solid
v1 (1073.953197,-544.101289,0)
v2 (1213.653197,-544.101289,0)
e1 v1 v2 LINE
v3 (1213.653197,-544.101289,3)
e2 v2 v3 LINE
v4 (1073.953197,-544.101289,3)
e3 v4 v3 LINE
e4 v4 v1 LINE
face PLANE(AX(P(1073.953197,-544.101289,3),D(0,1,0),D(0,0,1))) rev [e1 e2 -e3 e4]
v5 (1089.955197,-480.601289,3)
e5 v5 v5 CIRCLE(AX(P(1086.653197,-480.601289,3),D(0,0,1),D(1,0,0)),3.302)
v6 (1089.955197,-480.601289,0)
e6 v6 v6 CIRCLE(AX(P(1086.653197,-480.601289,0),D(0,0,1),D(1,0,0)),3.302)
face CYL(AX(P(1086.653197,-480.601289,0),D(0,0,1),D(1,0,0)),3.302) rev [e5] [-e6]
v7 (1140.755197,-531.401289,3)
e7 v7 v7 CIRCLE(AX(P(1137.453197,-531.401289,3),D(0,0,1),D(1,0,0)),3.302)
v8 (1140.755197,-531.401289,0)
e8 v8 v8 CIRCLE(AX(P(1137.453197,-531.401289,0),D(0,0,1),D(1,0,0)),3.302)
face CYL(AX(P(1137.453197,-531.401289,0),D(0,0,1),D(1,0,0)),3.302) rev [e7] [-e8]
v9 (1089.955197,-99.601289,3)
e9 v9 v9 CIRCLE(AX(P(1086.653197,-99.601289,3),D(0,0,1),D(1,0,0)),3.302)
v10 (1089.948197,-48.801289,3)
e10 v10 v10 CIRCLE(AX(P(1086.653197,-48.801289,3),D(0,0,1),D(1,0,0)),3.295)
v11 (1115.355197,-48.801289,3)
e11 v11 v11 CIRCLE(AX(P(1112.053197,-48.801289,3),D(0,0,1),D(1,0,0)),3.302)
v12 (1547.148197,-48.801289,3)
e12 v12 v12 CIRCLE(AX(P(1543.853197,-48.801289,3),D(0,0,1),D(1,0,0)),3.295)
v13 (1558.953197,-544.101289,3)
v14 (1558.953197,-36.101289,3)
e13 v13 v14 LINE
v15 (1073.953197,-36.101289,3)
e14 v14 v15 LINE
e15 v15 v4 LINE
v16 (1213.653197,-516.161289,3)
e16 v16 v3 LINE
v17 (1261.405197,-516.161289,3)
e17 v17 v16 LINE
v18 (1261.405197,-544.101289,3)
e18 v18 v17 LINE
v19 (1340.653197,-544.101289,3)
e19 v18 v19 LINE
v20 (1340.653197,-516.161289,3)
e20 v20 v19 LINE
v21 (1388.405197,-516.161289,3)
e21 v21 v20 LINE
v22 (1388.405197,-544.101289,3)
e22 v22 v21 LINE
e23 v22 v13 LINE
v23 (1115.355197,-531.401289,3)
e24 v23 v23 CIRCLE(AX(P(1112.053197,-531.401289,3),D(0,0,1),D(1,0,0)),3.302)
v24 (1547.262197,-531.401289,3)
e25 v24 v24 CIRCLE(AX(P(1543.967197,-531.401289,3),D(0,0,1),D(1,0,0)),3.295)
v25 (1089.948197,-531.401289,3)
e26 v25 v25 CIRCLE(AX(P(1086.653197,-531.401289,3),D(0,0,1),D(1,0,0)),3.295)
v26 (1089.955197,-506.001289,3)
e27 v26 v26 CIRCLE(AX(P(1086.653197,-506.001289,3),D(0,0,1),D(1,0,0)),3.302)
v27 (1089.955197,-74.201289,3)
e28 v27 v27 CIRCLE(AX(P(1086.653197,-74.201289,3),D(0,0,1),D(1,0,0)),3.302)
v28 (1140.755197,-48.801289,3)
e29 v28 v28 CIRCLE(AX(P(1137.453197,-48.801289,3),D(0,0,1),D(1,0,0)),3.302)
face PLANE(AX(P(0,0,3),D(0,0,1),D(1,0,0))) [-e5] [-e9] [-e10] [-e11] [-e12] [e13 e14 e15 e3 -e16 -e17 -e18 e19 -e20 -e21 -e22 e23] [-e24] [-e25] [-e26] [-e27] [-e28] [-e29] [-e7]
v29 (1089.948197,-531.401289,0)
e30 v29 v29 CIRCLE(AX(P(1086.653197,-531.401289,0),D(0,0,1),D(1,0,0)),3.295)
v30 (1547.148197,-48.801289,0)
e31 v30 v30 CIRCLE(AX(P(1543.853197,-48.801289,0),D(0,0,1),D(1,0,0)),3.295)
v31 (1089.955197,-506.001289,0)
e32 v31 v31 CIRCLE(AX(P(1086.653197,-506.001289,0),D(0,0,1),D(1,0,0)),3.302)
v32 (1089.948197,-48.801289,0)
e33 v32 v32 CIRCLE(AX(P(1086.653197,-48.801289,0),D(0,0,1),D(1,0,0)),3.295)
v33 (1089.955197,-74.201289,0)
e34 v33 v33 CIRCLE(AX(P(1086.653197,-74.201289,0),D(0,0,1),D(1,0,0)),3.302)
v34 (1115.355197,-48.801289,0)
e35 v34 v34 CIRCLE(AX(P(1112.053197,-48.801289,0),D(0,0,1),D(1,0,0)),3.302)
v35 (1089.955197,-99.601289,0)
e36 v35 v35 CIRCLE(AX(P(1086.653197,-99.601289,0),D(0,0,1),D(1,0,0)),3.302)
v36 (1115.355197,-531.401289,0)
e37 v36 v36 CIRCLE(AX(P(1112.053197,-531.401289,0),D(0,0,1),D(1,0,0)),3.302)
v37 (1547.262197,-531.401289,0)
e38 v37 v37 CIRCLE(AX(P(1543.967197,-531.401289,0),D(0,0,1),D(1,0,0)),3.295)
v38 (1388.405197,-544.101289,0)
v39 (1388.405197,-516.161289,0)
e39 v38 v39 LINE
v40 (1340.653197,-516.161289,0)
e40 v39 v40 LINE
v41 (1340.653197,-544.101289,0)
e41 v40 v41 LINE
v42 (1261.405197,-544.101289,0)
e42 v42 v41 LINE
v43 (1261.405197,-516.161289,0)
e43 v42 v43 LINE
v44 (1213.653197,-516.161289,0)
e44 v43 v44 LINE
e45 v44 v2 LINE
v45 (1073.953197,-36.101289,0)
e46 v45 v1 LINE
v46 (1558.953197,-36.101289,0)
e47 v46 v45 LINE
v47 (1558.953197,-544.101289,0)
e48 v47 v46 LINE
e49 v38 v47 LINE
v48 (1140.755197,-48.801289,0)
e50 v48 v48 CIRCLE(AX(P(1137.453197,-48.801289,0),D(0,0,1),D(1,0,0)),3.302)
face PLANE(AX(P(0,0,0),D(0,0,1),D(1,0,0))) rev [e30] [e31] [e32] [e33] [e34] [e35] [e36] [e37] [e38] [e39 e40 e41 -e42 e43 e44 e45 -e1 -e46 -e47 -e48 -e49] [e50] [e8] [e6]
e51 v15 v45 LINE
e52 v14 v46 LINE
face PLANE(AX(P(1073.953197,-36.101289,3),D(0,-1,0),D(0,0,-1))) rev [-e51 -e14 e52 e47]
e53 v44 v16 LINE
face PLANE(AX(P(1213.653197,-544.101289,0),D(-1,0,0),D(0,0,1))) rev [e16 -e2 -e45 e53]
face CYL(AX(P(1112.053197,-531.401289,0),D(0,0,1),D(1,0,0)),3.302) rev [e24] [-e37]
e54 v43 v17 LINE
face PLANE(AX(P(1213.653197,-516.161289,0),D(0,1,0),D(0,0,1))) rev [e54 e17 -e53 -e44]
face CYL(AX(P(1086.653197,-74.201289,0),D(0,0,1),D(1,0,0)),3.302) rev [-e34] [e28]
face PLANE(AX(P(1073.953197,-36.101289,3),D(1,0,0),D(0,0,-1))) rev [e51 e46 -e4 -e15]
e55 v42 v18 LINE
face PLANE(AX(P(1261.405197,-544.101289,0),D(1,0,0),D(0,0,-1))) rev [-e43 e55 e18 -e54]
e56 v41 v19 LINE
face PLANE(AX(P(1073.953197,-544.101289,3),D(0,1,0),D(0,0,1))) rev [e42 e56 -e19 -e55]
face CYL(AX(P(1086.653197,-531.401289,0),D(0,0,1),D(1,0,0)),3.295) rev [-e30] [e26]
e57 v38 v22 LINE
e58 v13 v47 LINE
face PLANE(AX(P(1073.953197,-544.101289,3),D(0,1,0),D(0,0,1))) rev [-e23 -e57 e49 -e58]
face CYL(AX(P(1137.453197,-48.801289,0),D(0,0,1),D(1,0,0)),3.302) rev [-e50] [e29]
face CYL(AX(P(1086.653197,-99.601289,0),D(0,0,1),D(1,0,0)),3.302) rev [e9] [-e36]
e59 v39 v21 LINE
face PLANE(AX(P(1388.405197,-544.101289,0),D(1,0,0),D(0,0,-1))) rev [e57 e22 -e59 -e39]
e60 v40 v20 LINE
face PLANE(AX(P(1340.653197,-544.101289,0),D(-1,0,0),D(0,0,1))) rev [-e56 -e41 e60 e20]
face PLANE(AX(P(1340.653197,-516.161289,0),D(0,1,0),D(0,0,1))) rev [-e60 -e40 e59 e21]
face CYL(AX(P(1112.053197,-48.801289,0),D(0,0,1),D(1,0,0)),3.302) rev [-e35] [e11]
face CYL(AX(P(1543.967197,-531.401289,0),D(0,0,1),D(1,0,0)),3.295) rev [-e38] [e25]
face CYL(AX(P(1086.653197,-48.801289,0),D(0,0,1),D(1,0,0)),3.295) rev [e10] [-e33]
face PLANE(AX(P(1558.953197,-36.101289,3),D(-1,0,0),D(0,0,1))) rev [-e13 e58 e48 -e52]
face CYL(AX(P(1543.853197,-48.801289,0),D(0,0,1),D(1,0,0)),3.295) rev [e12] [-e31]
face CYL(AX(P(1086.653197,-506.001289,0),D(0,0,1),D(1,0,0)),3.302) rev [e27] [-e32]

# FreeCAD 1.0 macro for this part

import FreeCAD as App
import Part
import Sketcher
Q = App.Units.Quantity

doc = App.newDocument("Part")
body = doc.addObject("PartDesign::Body", "Body")

# Sketch on XY plane
sketch1 = doc.addObject("Sketcher::SketchObject", "Sketch")
body.addObject(sketch1)
sketch1.AttachmentSupport = (doc.XY_Plane, [""])
sketch1.MapMode = "FlatFace"
sketch1.addGeometry([
    Part.LineSegment(App.Vector(1074, -36, 0), App.Vector(1074, -544, 0)),
    Part.LineSegment(App.Vector(1074, -544, 0), App.Vector(1559, -544, 0)),
    Part.LineSegment(App.Vector(1559, -544, 0), App.Vector(1559, -36, 0)),
    Part.LineSegment(App.Vector(1559, -36, 0), App.Vector(1074, -36, 0)),
], False)
sketch1.addConstraint([
    Sketcher.Constraint("Coincident", 0, 2, 1, 1),
    Sketcher.Constraint("Coincident", 1, 2, 2, 1),
    Sketcher.Constraint("Coincident", 2, 2, 3, 1),
    Sketcher.Constraint("Coincident", 3, 2, 0, 1),
    Sketcher.Constraint("Vertical", 0),
    Sketcher.Constraint("Horizontal", 1),
    Sketcher.Constraint("Vertical", 2),
    Sketcher.Constraint("Horizontal", 3),
    Sketcher.Constraint("DistanceY", 0, 2, 0, 1, Q("20 in")),
    Sketcher.Constraint("DistanceX", 1, 1, 1, 2, 485.0),
    Sketcher.Constraint("DistanceY", 0, 2, -1, 1, 544.101289),
    Sketcher.Constraint("DistanceX", -1, 1, 0, 2, 1073.953197),
])
pad1 = doc.addObject("PartDesign::Pad", "Pad")
body.addObject(pad1)
pad1.Profile = sketch1
pad1.Length = 3

# Sketch on XY plane
sketch2 = doc.addObject("Sketcher::SketchObject", "Sketch001")
body.addObject(sketch2)
sketch2.AttachmentSupport = (doc.XY_Plane, [""])
sketch2.MapMode = "FlatFace"
sketch2.AttachmentOffset = App.Placement(App.Vector(0, 0, 3), App.Rotation())
sketch2.addGeometry([
    Part.Circle(App.Vector(1086.7, -48.8, 0), App.Vector(0, 0, 1), 3.3),
    Part.Circle(App.Vector(1543.9, -48.8, 0), App.Vector(0, 0, 1), 3.3),
    Part.Circle(App.Vector(1544, -531.4, 0), App.Vector(0, 0, 1), 3.3),
    Part.Circle(App.Vector(1086.7, -531.4, 0), App.Vector(0, 0, 1), 3.3),
], False)
sketch2.addConstraint([
    Sketcher.Constraint("Equal", 0, 1),
    Sketcher.Constraint("Equal", 1, 2),
    Sketcher.Constraint("Equal", 2, 3),
    Sketcher.Constraint("Horizontal", 0, 3, 1, 3),
    Sketcher.Constraint("Horizontal", 2, 3, 3, 3),
    Sketcher.Constraint("Vertical", 0, 3, 3, 3),
    Sketcher.Constraint("DistanceX", 0, 3, 1, 3, Q("18 in")),
    Sketcher.Constraint("DistanceY", 2, 3, 1, 3, Q("19 in")),
    Sketcher.Constraint("Diameter", 0, 6.59),
    Sketcher.Constraint("DistanceX", 1, 3, 2, 3, 0.114),
    Sketcher.Constraint("DistanceY", 0, 3, -1, 1, 48.801289),
    Sketcher.Constraint("DistanceX", -1, 1, 0, 3, 1086.653197),
])
pocket1 = doc.addObject("PartDesign::Pocket", "Pocket")
body.addObject(pocket1)
pocket1.Profile = sketch2
pocket1.Length = 3

# Sketch on XY plane
sketch3 = doc.addObject("Sketcher::SketchObject", "Sketch002")
body.addObject(sketch3)
sketch3.AttachmentSupport = (doc.XY_Plane, [""])
sketch3.MapMode = "FlatFace"
sketch3.AttachmentOffset = App.Placement(App.Vector(0, 0, 3), App.Rotation())
sketch3.addGeometry([
    Part.LineSegment(App.Vector(1214, -516, 0), App.Vector(1214, -544, 0)),  # 0
    Part.LineSegment(App.Vector(1214, -544, 0), App.Vector(1261, -544, 0)),  # 1
    Part.LineSegment(App.Vector(1261, -544, 0), App.Vector(1261, -516, 0)),  # 2
    Part.LineSegment(App.Vector(1261, -516, 0), App.Vector(1214, -516, 0)),  # 3
    Part.LineSegment(App.Vector(1341, -516, 0), App.Vector(1341, -544, 0)),  # 4
    Part.LineSegment(App.Vector(1341, -544, 0), App.Vector(1388, -544, 0)),  # 5
    Part.LineSegment(App.Vector(1388, -544, 0), App.Vector(1388, -516, 0)),  # 6
    Part.LineSegment(App.Vector(1388, -516, 0), App.Vector(1341, -516, 0)),  # 7
], False)
sketch3.addConstraint([
    Sketcher.Constraint("Coincident", 0, 2, 1, 1),
    Sketcher.Constraint("Coincident", 1, 2, 2, 1),
    Sketcher.Constraint("Coincident", 2, 2, 3, 1),
    Sketcher.Constraint("Coincident", 3, 2, 0, 1),
    Sketcher.Constraint("Coincident", 4, 2, 5, 1),
    Sketcher.Constraint("Coincident", 5, 2, 6, 1),
    Sketcher.Constraint("Coincident", 6, 2, 7, 1),
    Sketcher.Constraint("Coincident", 7, 2, 4, 1),
    Sketcher.Constraint("Vertical", 0),
    Sketcher.Constraint("Horizontal", 1),
    Sketcher.Constraint("Vertical", 2),
    Sketcher.Constraint("Horizontal", 3),
    Sketcher.Constraint("Vertical", 4),
    Sketcher.Constraint("Horizontal", 5),
    Sketcher.Constraint("Vertical", 6),
    Sketcher.Constraint("Horizontal", 7),
    Sketcher.Constraint("Horizontal", 1, 2, 4, 2),
    Sketcher.Constraint("Horizontal", 3, 2, 6, 2),
    Sketcher.Constraint("Equal", 3, 5),
    Sketcher.Constraint("DistanceY", 0, 2, 0, 1, Q("1.1 in")),
    Sketcher.Constraint("DistanceX", 0, 2, 4, 2, Q("5 in")),
    Sketcher.Constraint("DistanceX", 1, 1, 1, 2, Q("1.88 in")),
    Sketcher.Constraint("DistanceY", 0, 2, -1, 1, 544.101289),
    Sketcher.Constraint("DistanceX", -1, 1, 0, 2, 1213.653197),
])
pocket2 = doc.addObject("PartDesign::Pocket", "Pocket001")
body.addObject(pocket2)
pocket2.Profile = sketch3
pocket2.Type = "ThroughAll"

# Sketch on XY plane
sketch4 = doc.addObject("Sketcher::SketchObject", "Sketch003")
body.addObject(sketch4)
sketch4.AttachmentSupport = (doc.XY_Plane, [""])
sketch4.MapMode = "FlatFace"
sketch4.AttachmentOffset = App.Placement(App.Vector(0, 0, 3), App.Rotation())
sketch4.addGeometry([
    Part.Circle(App.Vector(1112.1, -48.8, 0), App.Vector(0, 0, 1), 3.3),  # 0
    Part.Circle(App.Vector(1137.5, -48.8, 0), App.Vector(0, 0, 1), 3.3),  # 1
    Part.Circle(App.Vector(1086.7, -74.2, 0), App.Vector(0, 0, 1), 3.3),  # 2
    Part.Circle(App.Vector(1086.7, -99.6, 0), App.Vector(0, 0, 1), 3.3),  # 3
    Part.Circle(App.Vector(1086.7, -480.6, 0), App.Vector(0, 0, 1), 3.3),  # 4
    Part.Circle(App.Vector(1086.7, -506, 0), App.Vector(0, 0, 1), 3.3),  # 5
    Part.Circle(App.Vector(1112.1, -531.4, 0), App.Vector(0, 0, 1), 3.3),  # 6
    Part.Circle(App.Vector(1137.5, -531.4, 0), App.Vector(0, 0, 1), 3.3),  # 7
], False)
sketch4.addConstraint([
    Sketcher.Constraint("Equal", 0, 1),
    Sketcher.Constraint("Equal", 1, 2),
    Sketcher.Constraint("Equal", 2, 3),
    Sketcher.Constraint("Equal", 3, 4),
    Sketcher.Constraint("Equal", 4, 5),
    Sketcher.Constraint("Equal", 5, 6),
    Sketcher.Constraint("Equal", 6, 7),
    Sketcher.Constraint("Horizontal", 0, 3, 1, 3),
    Sketcher.Constraint("Horizontal", 6, 3, 7, 3),
    Sketcher.Constraint("Vertical", 2, 3, 3, 3),
    Sketcher.Constraint("Vertical", 3, 3, 4, 3),
    Sketcher.Constraint("Vertical", 4, 3, 5, 3),
    Sketcher.Constraint("Vertical", 0, 3, 6, 3),
    Sketcher.Constraint("Vertical", 1, 3, 7, 3),
    Sketcher.Constraint("Diameter", 0, Q("0.26 in")),
    Sketcher.Constraint("DistanceX", 0, 3, 1, 3, Q("1 in")),
    Sketcher.Constraint("DistanceX", 2, 3, 0, 3, Q("1 in")),
    Sketcher.Constraint("DistanceY", 2, 3, 0, 3, Q("1 in")),
    Sketcher.Constraint("DistanceY", 3, 3, 2, 3, Q("1 in")),
    Sketcher.Constraint("DistanceY", 4, 3, 3, 3, Q("15 in")),
    Sketcher.Constraint("DistanceY", 5, 3, 4, 3, Q("1 in")),
    Sketcher.Constraint("DistanceY", 6, 3, 5, 3, Q("1 in")),
    Sketcher.Constraint("DistanceY", 0, 3, -1, 1, 48.801289),
    Sketcher.Constraint("DistanceX", -1, 1, 0, 3, 1112.053197),
])
pocket3 = doc.addObject("PartDesign::Pocket", "Pocket002")
body.addObject(pocket3)
pocket3.Profile = sketch4
pocket3.Type = "ThroughAll"

doc.recompute()
